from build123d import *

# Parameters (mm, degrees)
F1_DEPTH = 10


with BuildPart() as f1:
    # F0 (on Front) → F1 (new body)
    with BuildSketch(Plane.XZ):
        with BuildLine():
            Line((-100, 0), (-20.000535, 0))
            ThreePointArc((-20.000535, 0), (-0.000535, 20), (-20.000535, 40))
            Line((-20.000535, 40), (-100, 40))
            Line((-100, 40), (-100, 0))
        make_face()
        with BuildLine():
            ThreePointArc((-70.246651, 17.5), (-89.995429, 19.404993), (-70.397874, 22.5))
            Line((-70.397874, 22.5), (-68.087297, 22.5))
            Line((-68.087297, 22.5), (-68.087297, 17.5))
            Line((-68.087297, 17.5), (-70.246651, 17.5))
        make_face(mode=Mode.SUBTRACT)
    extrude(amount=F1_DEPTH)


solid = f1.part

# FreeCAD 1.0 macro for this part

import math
import FreeCAD as App
import Part
import Sketcher
Q = App.Units.Quantity

doc = App.newDocument("Part")
body = doc.addObject("PartDesign::Body", "Body")

# Sketch on XZ plane
sketch1 = doc.addObject("Sketcher::SketchObject", "Sketch")
body.addObject(sketch1)
sketch1.AttachmentSupport = (doc.XZ_Plane, [""])
sketch1.MapMode = "FlatFace"
sketch1.addGeometry([
    Part.LineSegment(App.Vector(-100, 0, 0), App.Vector(-20, 0, 0)),  # 0
    Part.ArcOfCircle(Part.Circle(App.Vector(-20, 20, 0), App.Vector(0, 0, 1), 20), math.radians(-90), math.radians(90)),  # 1
    Part.LineSegment(App.Vector(-20, 40, 0), App.Vector(-100, 40, 0)),  # 2
    Part.LineSegment(App.Vector(-100, 40, 0), App.Vector(-100, 0, 0)),  # 3
    Part.LineSegment(App.Vector(-68.1, 17.5, 0), App.Vector(-70.2, 17.5, 0)),  # 4
    Part.ArcOfCircle(Part.Circle(App.Vector(-80, 19.7, 0), App.Vector(0, 0, 1), 10), math.radians(16), math.radians(347)),  # 5
    Part.LineSegment(App.Vector(-70.4, 22.5, 0), App.Vector(-68.1, 22.5, 0)),  # 6
    Part.LineSegment(App.Vector(-68.1, 22.5, 0), App.Vector(-68.1, 17.5, 0)),  # 7
], False)
sketch1.addConstraint([
    Sketcher.Constraint("Tangent", 0, 2, 1, 1),
    Sketcher.Constraint("Tangent", 1, 2, 2, 1),
    Sketcher.Constraint("Coincident", 2, 2, 3, 1),
    Sketcher.Constraint("Coincident", 3, 2, 0, 1),
    Sketcher.Constraint("Coincident", 4, 2, 5, 2),
    Sketcher.Constraint("Coincident", 5, 1, 6, 1),
    Sketcher.Constraint("Coincident", 6, 2, 7, 1),
    Sketcher.Constraint("Coincident", 7, 2, 4, 1),
    Sketcher.Constraint("Horizontal", 0),
    Sketcher.Constraint("Horizontal", 2),
    Sketcher.Constraint("Vertical", 3),
    Sketcher.Constraint("Horizontal", 4),
    Sketcher.Constraint("Horizontal", 6),
    Sketcher.Constraint("Vertical", 7),
    Sketcher.Constraint("PointOnObject", 0, 2, -1),
    Sketcher.Constraint("Radius", 1, Q("20 mm")),
    Sketcher.Constraint("Radius", 5, Q("10 mm")),
    Sketcher.Constraint("DistanceY", 7, 2, 7, 1, Q("5 mm")),
    Sketcher.Constraint("DistanceX", 5, 3, -1, 1, Q("80 mm")),
    Sketcher.Constraint("DistanceX", 2, 2, -1, 1, Q("100 mm")),
    Sketcher.Constraint("DistanceY", -1, 1, 4, 2, Q("17.5 mm")),
    Sketcher.Constraint("DistanceY", -1, 1, 5, 3, Q("19.707301 mm")),
    Sketcher.Constraint("DistanceX", 0, 1, 0, 2, Q("79.999465 mm")),
    Sketcher.Constraint("DistanceX", 4, 2, 4, 1, Q("2.159354 mm")),
])
pad1 = doc.addObject("PartDesign::Pad", "Pad")
body.addObject(pad1)
pad1.Profile = sketch1
pad1.Length = 10

doc.recompute()
